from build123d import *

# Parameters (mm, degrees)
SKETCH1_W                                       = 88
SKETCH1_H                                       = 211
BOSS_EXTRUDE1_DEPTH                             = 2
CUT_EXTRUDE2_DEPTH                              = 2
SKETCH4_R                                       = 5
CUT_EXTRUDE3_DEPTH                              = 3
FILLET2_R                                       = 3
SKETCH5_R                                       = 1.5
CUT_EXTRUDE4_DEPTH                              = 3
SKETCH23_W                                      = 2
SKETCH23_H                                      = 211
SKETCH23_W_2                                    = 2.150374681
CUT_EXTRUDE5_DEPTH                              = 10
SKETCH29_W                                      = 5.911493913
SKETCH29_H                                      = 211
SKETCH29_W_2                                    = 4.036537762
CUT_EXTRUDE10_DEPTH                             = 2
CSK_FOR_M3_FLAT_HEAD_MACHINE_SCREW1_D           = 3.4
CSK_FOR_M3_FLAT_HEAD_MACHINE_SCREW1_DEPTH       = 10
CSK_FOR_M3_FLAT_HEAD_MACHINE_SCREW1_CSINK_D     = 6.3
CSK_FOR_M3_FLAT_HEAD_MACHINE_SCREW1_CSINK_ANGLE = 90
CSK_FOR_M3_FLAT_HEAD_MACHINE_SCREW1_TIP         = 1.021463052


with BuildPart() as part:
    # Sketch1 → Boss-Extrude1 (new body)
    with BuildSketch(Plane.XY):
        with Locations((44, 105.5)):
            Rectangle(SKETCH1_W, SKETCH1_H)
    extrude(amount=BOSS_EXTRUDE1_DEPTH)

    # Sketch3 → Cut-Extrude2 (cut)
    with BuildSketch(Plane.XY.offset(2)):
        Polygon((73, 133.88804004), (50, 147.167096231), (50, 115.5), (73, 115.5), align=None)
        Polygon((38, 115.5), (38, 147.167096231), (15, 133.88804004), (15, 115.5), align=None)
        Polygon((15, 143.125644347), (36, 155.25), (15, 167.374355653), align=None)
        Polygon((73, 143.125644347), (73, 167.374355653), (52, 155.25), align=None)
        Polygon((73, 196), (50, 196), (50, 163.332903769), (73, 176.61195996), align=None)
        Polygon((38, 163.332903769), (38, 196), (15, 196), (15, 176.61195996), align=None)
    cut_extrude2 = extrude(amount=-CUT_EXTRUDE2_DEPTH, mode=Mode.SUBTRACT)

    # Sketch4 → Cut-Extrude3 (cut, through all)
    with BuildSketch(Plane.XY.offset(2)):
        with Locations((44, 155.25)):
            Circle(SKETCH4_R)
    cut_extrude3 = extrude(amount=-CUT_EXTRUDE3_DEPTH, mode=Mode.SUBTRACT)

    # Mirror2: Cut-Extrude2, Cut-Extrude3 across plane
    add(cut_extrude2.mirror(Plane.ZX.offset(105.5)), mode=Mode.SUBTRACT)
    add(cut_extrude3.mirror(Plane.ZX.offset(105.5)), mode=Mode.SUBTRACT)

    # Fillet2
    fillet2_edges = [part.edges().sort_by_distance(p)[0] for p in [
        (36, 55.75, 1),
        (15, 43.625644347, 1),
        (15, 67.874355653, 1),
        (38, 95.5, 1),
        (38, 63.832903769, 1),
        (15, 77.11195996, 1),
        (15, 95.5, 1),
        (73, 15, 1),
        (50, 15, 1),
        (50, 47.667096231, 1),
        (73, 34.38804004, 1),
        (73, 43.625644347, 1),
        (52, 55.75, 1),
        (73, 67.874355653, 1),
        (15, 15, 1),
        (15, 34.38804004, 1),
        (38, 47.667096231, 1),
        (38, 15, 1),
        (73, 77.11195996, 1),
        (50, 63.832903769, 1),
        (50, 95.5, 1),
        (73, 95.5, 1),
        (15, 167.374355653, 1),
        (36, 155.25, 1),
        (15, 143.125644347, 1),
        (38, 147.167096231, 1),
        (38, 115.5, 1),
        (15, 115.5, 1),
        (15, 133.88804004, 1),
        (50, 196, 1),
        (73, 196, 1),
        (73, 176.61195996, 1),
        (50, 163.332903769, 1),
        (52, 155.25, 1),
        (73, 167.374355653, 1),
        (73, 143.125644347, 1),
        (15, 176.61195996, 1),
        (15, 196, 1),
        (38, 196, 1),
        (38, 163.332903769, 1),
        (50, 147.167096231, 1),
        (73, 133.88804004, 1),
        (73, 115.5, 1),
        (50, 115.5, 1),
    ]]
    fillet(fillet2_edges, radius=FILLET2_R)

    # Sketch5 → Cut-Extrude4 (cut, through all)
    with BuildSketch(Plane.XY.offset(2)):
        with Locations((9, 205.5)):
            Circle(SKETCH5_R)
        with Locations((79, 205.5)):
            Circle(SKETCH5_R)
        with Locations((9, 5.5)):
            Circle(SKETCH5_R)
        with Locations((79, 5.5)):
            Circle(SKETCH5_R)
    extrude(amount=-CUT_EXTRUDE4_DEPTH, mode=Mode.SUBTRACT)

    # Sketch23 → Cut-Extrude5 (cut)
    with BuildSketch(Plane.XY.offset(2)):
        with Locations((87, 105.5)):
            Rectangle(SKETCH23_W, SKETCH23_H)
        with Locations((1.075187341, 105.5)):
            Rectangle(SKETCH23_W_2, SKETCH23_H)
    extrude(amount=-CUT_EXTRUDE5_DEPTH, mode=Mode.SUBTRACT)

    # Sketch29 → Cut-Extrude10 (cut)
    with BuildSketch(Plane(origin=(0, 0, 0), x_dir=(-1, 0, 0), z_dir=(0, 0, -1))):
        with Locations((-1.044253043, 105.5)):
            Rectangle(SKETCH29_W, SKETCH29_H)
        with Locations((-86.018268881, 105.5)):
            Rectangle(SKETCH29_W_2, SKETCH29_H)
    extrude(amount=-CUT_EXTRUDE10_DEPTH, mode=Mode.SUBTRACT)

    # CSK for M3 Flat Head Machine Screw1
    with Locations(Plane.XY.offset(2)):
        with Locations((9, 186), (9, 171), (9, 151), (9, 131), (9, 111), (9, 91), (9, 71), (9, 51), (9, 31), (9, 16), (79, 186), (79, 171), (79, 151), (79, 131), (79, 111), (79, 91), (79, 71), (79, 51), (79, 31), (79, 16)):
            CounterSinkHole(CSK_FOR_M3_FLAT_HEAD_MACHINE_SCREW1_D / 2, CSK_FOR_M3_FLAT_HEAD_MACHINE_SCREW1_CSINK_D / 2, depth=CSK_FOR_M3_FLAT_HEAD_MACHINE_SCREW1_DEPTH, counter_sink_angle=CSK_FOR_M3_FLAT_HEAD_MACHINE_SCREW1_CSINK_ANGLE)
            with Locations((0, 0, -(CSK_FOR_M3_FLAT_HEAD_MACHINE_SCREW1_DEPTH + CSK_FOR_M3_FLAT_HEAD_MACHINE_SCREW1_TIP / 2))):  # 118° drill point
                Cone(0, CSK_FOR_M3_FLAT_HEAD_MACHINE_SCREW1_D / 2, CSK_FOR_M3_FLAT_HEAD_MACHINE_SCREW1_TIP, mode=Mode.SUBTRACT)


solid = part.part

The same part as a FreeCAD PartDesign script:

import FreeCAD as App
import Part
import Sketcher
Q = App.Units.Quantity


def edges_at(feature, points):
    """Names of the edges that pass closest to the given points."""
    edges = feature.Shape.Edges
    near = lambda p: min(range(len(edges)), key=lambda i: edges[i].distToShape(Part.Vertex(*p))[0])
    return sorted({f"Edge{near(p) + 1}" for p in points})


def add_polygon(sketch, points):
    """Adds a closed chain of lines whose ends are joined by coincident constraints."""
    first, n = sketch.GeometryCount, len(points)
    for a, b in zip(points, points[1:] + points[:1]):
        sketch.addGeometry(Part.LineSegment(App.Vector(*a, 0), App.Vector(*b, 0)), False)
    for i in range(n):
        sketch.addConstraint(Sketcher.Constraint("Coincident", first + i, 2, first + (i + 1) % n, 1))

doc = App.newDocument("Part")
body = doc.addObject("PartDesign::Body", "Body")

sketch1 = body.newObject("Sketcher::SketchObject", "Sketch")
sketch1.AttachmentSupport = (doc.getObject("XY_Plane"), [""])
sketch1.MapMode = "FlatFace"
add_polygon(sketch1, [(0, 211), (0, 0), (88, 0), (88, 211)])
sketch1.addConstraint(Sketcher.Constraint("Vertical", 0))
sketch1.addConstraint(Sketcher.Constraint("Horizontal", 1))
sketch1.addConstraint(Sketcher.Constraint("Vertical", 2))
sketch1.addConstraint(Sketcher.Constraint("Horizontal", 3))
sketch1.addConstraint(Sketcher.Constraint("Coincident", 0, 2, -1, 1))
sketch1.addConstraint(Sketcher.Constraint("DistanceX", 1, 1, 1, 2, Q("88 mm")))
sketch1.addConstraint(Sketcher.Constraint("DistanceY", 0, 2, 0, 1, Q("211 mm")))
pad1 = body.newObject("PartDesign::Pad", "Pad")
pad1.Profile = sketch1
pad1.Length = 2

sketch2 = body.newObject("Sketcher::SketchObject", "Sketch001")
sketch2.AttachmentSupport = (doc.getObject("XY_Plane"), [""])
sketch2.MapMode = "FlatFace"
sketch2.AttachmentOffset = App.Placement(App.Vector(0, 0, 2), App.Rotation())
add_polygon(sketch2, [(73, 134), (50, 147), (50, 116), (73, 116)])
add_polygon(sketch2, [(38, 116), (38, 147), (15, 134), (15, 116)])
add_polygon(sketch2, [(15, 143), (36, 155), (15, 167)])
add_polygon(sketch2, [(73, 143), (73, 167), (52, 155)])
add_polygon(sketch2, [(73, 196), (50, 196), (50, 163), (73, 177)])
add_polygon(sketch2, [(38, 163), (38, 196), (15, 196), (15, 177)])
sketch2.addConstraint(Sketcher.Constraint("Vertical", 1))
sketch2.addConstraint(Sketcher.Constraint("Horizontal", 2))
sketch2.addConstraint(Sketcher.Constraint("Vertical", 3))
sketch2.addConstraint(Sketcher.Constraint("Vertical", 4))
sketch2.addConstraint(Sketcher.Constraint("Vertical", 6))
sketch2.addConstraint(Sketcher.Constraint("Horizontal", 7))
sketch2.addConstraint(Sketcher.Constraint("Vertical", 10))
sketch2.addConstraint(Sketcher.Constraint("Vertical", 11))
sketch2.addConstraint(Sketcher.Constraint("Horizontal", 14))
sketch2.addConstraint(Sketcher.Constraint("Vertical", 15))
sketch2.addConstraint(Sketcher.Constraint("Vertical", 17))
sketch2.addConstraint(Sketcher.Constraint("Vertical", 18))
sketch2.addConstraint(Sketcher.Constraint("Horizontal", 19))
sketch2.addConstraint(Sketcher.Constraint("Vertical", 20))
sketch2.addConstraint(Sketcher.Constraint("Parallel", 5, 8))
sketch2.addConstraint(Sketcher.Constraint("Parallel", 0, 9))
sketch2.addConstraint(Sketcher.Constraint("Parallel", 8, 12))
sketch2.addConstraint(Sketcher.Constraint("Parallel", 9, 13))
sketch2.addConstraint(Sketcher.Constraint("Parallel", 12, 16))
sketch2.addConstraint(Sketcher.Constraint("Parallel", 13, 21))
sketch2.addConstraint(Sketcher.Constraint("Horizontal", 0, 2, 4, 2))
sketch2.addConstraint(Sketcher.Constraint("Horizontal", 3, 2, 5, 2))
sketch2.addConstraint(Sketcher.Constraint("Horizontal", 2, 2, 6, 2))
sketch2.addConstraint(Sketcher.Constraint("Horizontal", 9, 2, 11, 2))
sketch2.addConstraint(Sketcher.Constraint("Horizontal", 8, 2, 12, 2))
sketch2.addConstraint(Sketcher.Constraint("Horizontal", 10, 2, 13, 2))
sketch2.addConstraint(Sketcher.Constraint("Horizontal", 17, 2, 18, 2))
sketch2.addConstraint(Sketcher.Constraint("Horizontal", 16, 2, 20, 2))
sketch2.addConstraint(Sketcher.Constraint("Horizontal", 15, 2, 21, 2))
sketch2.addConstraint(Sketcher.Constraint("Vertical", 6, 2, 9, 2))
sketch2.addConstraint(Sketcher.Constraint("Vertical", 3, 2, 11, 2))
sketch2.addConstraint(Sketcher.Constraint("Vertical", 1, 2, 14, 2))
sketch2.addConstraint(Sketcher.Constraint("Vertical", 13, 2, 16, 2))
sketch2.addConstraint(Sketcher.Constraint("Vertical", 7, 2, 18, 2))
sketch2.addConstraint(Sketcher.Constraint("DistanceX", 2, 1, 2, 2, Q("23 mm")))
sketch2.addConstraint(Sketcher.Constraint("Angle", 0, Q("150 deg")))
sketch2.addConstraint(Sketcher.Constraint("DistanceX", -1, 1, 0, 2, Q("50 mm")))
sketch2.addConstraint(Sketcher.Constraint("DistanceX", -1, 1, 4, 2, Q("38 mm")))
sketch2.addConstraint(Sketcher.Constraint("DistanceX", -1, 1, 8, 2, Q("36 mm")))
sketch2.addConstraint(Sketcher.Constraint("DistanceY", -1, 1, 14, 2, Q("196 mm")))
sketch2.addConstraint(Sketcher.Constraint("DistanceY", -1, 1, 1, 2, Q("115.5 mm")))
sketch2.addConstraint(Sketcher.Constraint("DistanceY", -1, 1, 8, 2, Q("155.25 mm")))
sketch2.addConstraint(Sketcher.Constraint("DistanceY", 3, 1, 3, 2, Q("18.38804 mm")))
sketch2.addConstraint(Sketcher.Constraint("DistanceY", 17, 1, 17, 2, Q("19.38804 mm")))
pocket1 = body.newObject("PartDesign::Pocket", "Pocket")
pocket1.Profile = sketch2
pocket1.Length = 2

sketch3 = body.newObject("Sketcher::SketchObject", "Sketch002")
sketch3.AttachmentSupport = (doc.getObject("XY_Plane"), [""])
sketch3.MapMode = "FlatFace"
sketch3.AttachmentOffset = App.Placement(App.Vector(0, 0, 2), App.Rotation())
sketch3.addGeometry(Part.Circle(App.Vector(44, 155, 0), App.Vector(0, 0, 1), 5), False)
sketch3.addConstraint(Sketcher.Constraint("Diameter", 0, Q("10 mm")))
sketch3.addConstraint(Sketcher.Constraint("DistanceX", -1, 1, 0, 3, Q("44 mm")))
sketch3.addConstraint(Sketcher.Constraint("DistanceY", -1, 1, 0, 3, Q("155.25 mm")))
pocket2 = body.newObject("PartDesign::Pocket", "Pocket001")
pocket2.Profile = sketch3
pocket2.Type = "ThroughAll"
doc.recompute()

datumplane = body.newObject("PartDesign::Plane", "DatumPlane")
datumplane.AttachmentSupport = (doc.getObject("XZ_Plane"), [""])
datumplane.MapMode = "FlatFace"
datumplane.AttachmentOffset = App.Placement(App.Vector(0, 0, -105.5), App.Rotation())
mirrored = body.newObject("PartDesign::Mirrored", "Mirrored")
mirrored.Originals = [pocket1, pocket2]
mirrored.MirrorPlane = (datumplane, [""])
body.Tip = mirrored
doc.recompute()

fillet = body.newObject("PartDesign::Fillet", "Fillet")
fillet.Base = (mirrored, edges_at(mirrored, [
    (36, 55.75, 1),
    (15, 43.626, 1),
    (15, 67.874, 1),
    (38, 95.5, 1),
    (38, 63.833, 1),
    (15, 77.112, 1),
    (15, 95.5, 1),
    (73, 15, 1),
    (50, 15, 1),
    (50, 47.667, 1),
    (73, 34.388, 1),
    (73, 43.626, 1),
    (52, 55.75, 1),
    (73, 67.874, 1),
    (15, 15, 1),
    (15, 34.388, 1),
    (38, 47.667, 1),
    (38, 15, 1),
    (73, 77.112, 1),
    (50, 63.833, 1),
    (50, 95.5, 1),
    (73, 95.5, 1),
    (15, 167.374, 1),
    (36, 155.25, 1),
    (15, 143.126, 1),
    (38, 147.167, 1),
    (38, 115.5, 1),
    (15, 115.5, 1),
    (15, 133.888, 1),
    (50, 196, 1),
    (73, 196, 1),
    (73, 176.612, 1),
    (50, 163.333, 1),
    (52, 155.25, 1),
    (73, 167.374, 1),
    (73, 143.126, 1),
    (15, 176.612, 1),
    (15, 196, 1),
    (38, 196, 1),
    (38, 163.333, 1),
    (50, 147.167, 1),
    (73, 133.888, 1),
    (73, 115.5, 1),
    (50, 115.5, 1),
]))
fillet.Radius = 3

sketch4 = body.newObject("Sketcher::SketchObject", "Sketch003")
sketch4.AttachmentSupport = (doc.getObject("XY_Plane"), [""])
sketch4.MapMode = "FlatFace"
sketch4.AttachmentOffset = App.Placement(App.Vector(0, 0, 2), App.Rotation())
sketch4.addGeometry(Part.Circle(App.Vector(9, 205.5, 0), App.Vector(0, 0, 1), 1.5), False)
sketch4.addGeometry(Part.Circle(App.Vector(79, 205.5, 0), App.Vector(0, 0, 1), 1.5), False)
sketch4.addGeometry(Part.Circle(App.Vector(9, 5.5, 0), App.Vector(0, 0, 1), 1.5), False)
sketch4.addGeometry(Part.Circle(App.Vector(79, 5.5, 0), App.Vector(0, 0, 1), 1.5), False)
sketch4.addConstraint(Sketcher.Constraint("Equal", 0, 1))
sketch4.addConstraint(Sketcher.Constraint("Equal", 1, 2))
sketch4.addConstraint(Sketcher.Constraint("Equal", 2, 3))
sketch4.addConstraint(Sketcher.Constraint("Horizontal", 0, 3, 1, 3))
sketch4.addConstraint(Sketcher.Constraint("Horizontal", 2, 3, 3, 3))
sketch4.addConstraint(Sketcher.Constraint("Vertical", 0, 3, 2, 3))
sketch4.addConstraint(Sketcher.Constraint("Vertical", 1, 3, 3, 3))
sketch4.addConstraint(Sketcher.Constraint("Diameter", 0, Q("3 mm")))
sketch4.addConstraint(Sketcher.Constraint("DistanceX", -1, 1, 0, 3, Q("9 mm")))
sketch4.addConstraint(Sketcher.Constraint("DistanceX", -1, 1, 1, 3, Q("79 mm")))
sketch4.addConstraint(Sketcher.Constraint("DistanceY", 2, 3, 0, 3, Q("200 mm")))
sketch4.addConstraint(Sketcher.Constraint("DistanceY", -1, 1, 0, 3, Q("205.5 mm")))
pocket3 = body.newObject("PartDesign::Pocket", "Pocket002")
pocket3.Profile = sketch4
pocket3.Type = "ThroughAll"

sketch5 = body.newObject("Sketcher::SketchObject", "Sketch004")
sketch5.AttachmentSupport = (doc.getObject("XY_Plane"), [""])
sketch5.MapMode = "FlatFace"
sketch5.AttachmentOffset = App.Placement(App.Vector(0, 0, 2), App.Rotation())
add_polygon(sketch5, [(86, 211), (86, 0), (88, 0), (88, 211)])
add_polygon(sketch5, [(0, 211), (0, 0), (2.2, 0), (2.2, 211)])
sketch5.addConstraint(Sketcher.Constraint("Vertical", 0))
sketch5.addConstraint(Sketcher.Constraint("Horizontal", 1))
sketch5.addConstraint(Sketcher.Constraint("Vertical", 2))
sketch5.addConstraint(Sketcher.Constraint("Horizontal", 3))
sketch5.addConstraint(Sketcher.Constraint("Vertical", 4))
sketch5.addConstraint(Sketcher.Constraint("Horizontal", 5))
sketch5.addConstraint(Sketcher.Constraint("Vertical", 6))
sketch5.addConstraint(Sketcher.Constraint("Horizontal", 7))
sketch5.addConstraint(Sketcher.Constraint("Coincident", 4, 2, -1, 1))
sketch5.addConstraint(Sketcher.Constraint("PointOnObject", 0, 2, -1))
sketch5.addConstraint(Sketcher.Constraint("Horizontal", 3, 2, 6, 2))
sketch5.addConstraint(Sketcher.Constraint("DistanceX", 1, 1, 1, 2, Q("2 mm")))
sketch5.addConstraint(Sketcher.Constraint("DistanceY", 0, 2, 0, 1, Q("211 mm")))
sketch5.addConstraint(Sketcher.Constraint("DistanceX", -1, 1, 0, 2, Q("86 mm")))
sketch5.addConstraint(Sketcher.Constraint("DistanceX", 5, 1, 5, 2, Q("2.150375 mm")))
pocket4 = body.newObject("PartDesign::Pocket", "Pocket003")
pocket4.Profile = sketch5
pocket4.Length = 10

sketch6 = body.newObject("Sketcher::SketchObject", "Sketch005")
sketch6.AttachmentSupport = (doc.getObject("XY_Plane"), [""])
sketch6.MapMode = "FlatFace"
add_polygon(sketch6, [(4, 211), (4, 0), (-1.9, 0), (-1.9, 211)])
add_polygon(sketch6, [(88, 211), (88, 0), (84, 0), (84, 211)])
sketch6.addConstraint(Sketcher.Constraint("Vertical", 0))
sketch6.addConstraint(Sketcher.Constraint("Horizontal", 1))
sketch6.addConstraint(Sketcher.Constraint("Vertical", 2))
sketch6.addConstraint(Sketcher.Constraint("Horizontal", 3))
sketch6.addConstraint(Sketcher.Constraint("Vertical", 4))
sketch6.addConstraint(Sketcher.Constraint("Horizontal", 5))
sketch6.addConstraint(Sketcher.Constraint("Vertical", 6))
sketch6.addConstraint(Sketcher.Constraint("Horizontal", 7))
sketch6.addConstraint(Sketcher.Constraint("PointOnObject", 0, 2, -1))
sketch6.addConstraint(Sketcher.Constraint("PointOnObject", 4, 2, -1))
sketch6.addConstraint(Sketcher.Constraint("Horizontal", 3, 2, 6, 2))
sketch6.addConstraint(Sketcher.Constraint("DistanceY", 0, 2, 0, 1, Q("211 mm")))
sketch6.addConstraint(Sketcher.Constraint("DistanceX", -1, 1, 0, 2, Q("4 mm")))
sketch6.addConstraint(Sketcher.Constraint("DistanceX", -1, 1, 5, 2, Q("84 mm")))
sketch6.addConstraint(Sketcher.Constraint("DistanceX", 1, 2, 1, 1, Q("5.911494 mm")))
sketch6.addConstraint(Sketcher.Constraint("DistanceX", 5, 2, 5, 1, Q("4.036538 mm")))
pocket5 = body.newObject("PartDesign::Pocket", "Pocket004")
pocket5.Profile = sketch6
pocket5.Length = 2
pocket5.Reversed = True

sketch7 = body.newObject("Sketcher::SketchObject", "Sketch006")
sketch7.AttachmentSupport = (doc.getObject("XY_Plane"), [""])
sketch7.MapMode = "FlatFace"
sketch7.AttachmentOffset = App.Placement(App.Vector(0, 0, 2), App.Rotation())
sketch7.addGeometry(Part.Circle(App.Vector(9, 186, 0), App.Vector(0, 0, 1), 1.7), False)
sketch7.addGeometry(Part.Circle(App.Vector(9, 171, 0), App.Vector(0, 0, 1), 1.7), False)
sketch7.addGeometry(Part.Circle(App.Vector(9, 151, 0), App.Vector(0, 0, 1), 1.7), False)
sketch7.addGeometry(Part.Circle(App.Vector(9, 131, 0), App.Vector(0, 0, 1), 1.7), False)
sketch7.addGeometry(Part.Circle(App.Vector(9, 111, 0), App.Vector(0, 0, 1), 1.7), False)
sketch7.addGeometry(Part.Circle(App.Vector(9, 91, 0), App.Vector(0, 0, 1), 1.7), False)
sketch7.addGeometry(Part.Circle(App.Vector(9, 71, 0), App.Vector(0, 0, 1), 1.7), False)
sketch7.addGeometry(Part.Circle(App.Vector(9, 51, 0), App.Vector(0, 0, 1), 1.7), False)
sketch7.addGeometry(Part.Circle(App.Vector(9, 31, 0), App.Vector(0, 0, 1), 1.7), False)
sketch7.addGeometry(Part.Circle(App.Vector(9, 16, 0), App.Vector(0, 0, 1), 1.7), False)
sketch7.addGeometry(Part.Circle(App.Vector(79, 186, 0), App.Vector(0, 0, 1), 1.7), False)
sketch7.addGeometry(Part.Circle(App.Vector(79, 171, 0), App.Vector(0, 0, 1), 1.7), False)
sketch7.addGeometry(Part.Circle(App.Vector(79, 151, 0), App.Vector(0, 0, 1), 1.7), False)
sketch7.addGeometry(Part.Circle(App.Vector(79, 131, 0), App.Vector(0, 0, 1), 1.7), False)
sketch7.addGeometry(Part.Circle(App.Vector(79, 111, 0), App.Vector(0, 0, 1), 1.7), False)
sketch7.addGeometry(Part.Circle(App.Vector(79, 91, 0), App.Vector(0, 0, 1), 1.7), False)
sketch7.addGeometry(Part.Circle(App.Vector(79, 71, 0), App.Vector(0, 0, 1), 1.7), False)
sketch7.addGeometry(Part.Circle(App.Vector(79, 51, 0), App.Vector(0, 0, 1), 1.7), False)
sketch7.addGeometry(Part.Circle(App.Vector(79, 31, 0), App.Vector(0, 0, 1), 1.7), False)
sketch7.addGeometry(Part.Circle(App.Vector(79, 16, 0), App.Vector(0, 0, 1), 1.7), False)
sketch7.addConstraint(Sketcher.Constraint("Equal", 0, 1))
sketch7.addConstraint(Sketcher.Constraint("Equal", 1, 2))
sketch7.addConstraint(Sketcher.Constraint("Equal", 2, 3))
sketch7.addConstraint(Sketcher.Constraint("Equal", 3, 4))
sketch7.addConstraint(Sketcher.Constraint("Equal", 4, 5))
sketch7.addConstraint(Sketcher.Constraint("Equal", 5, 6))
sketch7.addConstraint(Sketcher.Constraint("Equal", 6, 7))
sketch7.addConstraint(Sketcher.Constraint("Equal", 7, 8))
sketch7.addConstraint(Sketcher.Constraint("Equal", 8, 9))
sketch7.addConstraint(Sketcher.Constraint("Equal", 9, 10))
sketch7.addConstraint(Sketcher.Constraint("Equal", 10, 11))
sketch7.addConstraint(Sketcher.Constraint("Equal", 11, 12))
sketch7.addConstraint(Sketcher.Constraint("Equal", 12, 13))
sketch7.addConstraint(Sketcher.Constraint("Equal", 13, 14))
sketch7.addConstraint(Sketcher.Constraint("Equal", 14, 15))
sketch7.addConstraint(Sketcher.Constraint("Equal", 15, 16))
sketch7.addConstraint(Sketcher.Constraint("Equal", 16, 17))
sketch7.addConstraint(Sketcher.Constraint("Equal", 17, 18))
sketch7.addConstraint(Sketcher.Constraint("Equal", 18, 19))
sketch7.addConstraint(Sketcher.Constraint("Horizontal", 0, 3, 10, 3))
sketch7.addConstraint(Sketcher.Constraint("Horizontal", 1, 3, 11, 3))
sketch7.addConstraint(Sketcher.Constraint("Horizontal", 2, 3, 12, 3))
sketch7.addConstraint(Sketcher.Constraint("Horizontal", 3, 3, 13, 3))
sketch7.addConstraint(Sketcher.Constraint("Horizontal", 4, 3, 14, 3))
sketch7.addConstraint(Sketcher.Constraint("Horizontal", 5, 3, 15, 3))
sketch7.addConstraint(Sketcher.Constraint("Horizontal", 6, 3, 16, 3))
sketch7.addConstraint(Sketcher.Constraint("Horizontal", 7, 3, 17, 3))
sketch7.addConstraint(Sketcher.Constraint("Horizontal", 8, 3, 18, 3))
sketch7.addConstraint(Sketcher.Constraint("Horizontal", 9, 3, 19, 3))
sketch7.addConstraint(Sketcher.Constraint("Vertical", 0, 3, 1, 3))
sketch7.addConstraint(Sketcher.Constraint("Vertical", 1, 3, 2, 3))
sketch7.addConstraint(Sketcher.Constraint("Vertical", 2, 3, 3, 3))
sketch7.addConstraint(Sketcher.Constraint("Vertical", 3, 3, 4, 3))
sketch7.addConstraint(Sketcher.Constraint("Vertical", 4, 3, 5, 3))
sketch7.addConstraint(Sketcher.Constraint("Vertical", 5, 3, 6, 3))
sketch7.addConstraint(Sketcher.Constraint("Vertical", 6, 3, 7, 3))
sketch7.addConstraint(Sketcher.Constraint("Vertical", 7, 3, 8, 3))
sketch7.addConstraint(Sketcher.Constraint("Vertical", 8, 3, 9, 3))
sketch7.addConstraint(Sketcher.Constraint("Vertical", 10, 3, 11, 3))
sketch7.addConstraint(Sketcher.Constraint("Vertical", 11, 3, 12, 3))
sketch7.addConstraint(Sketcher.Constraint("Vertical", 12, 3, 13, 3))
sketch7.addConstraint(Sketcher.Constraint("Vertical", 13, 3, 14, 3))
sketch7.addConstraint(Sketcher.Constraint("Vertical", 14, 3, 15, 3))
sketch7.addConstraint(Sketcher.Constraint("Vertical", 15, 3, 16, 3))
sketch7.addConstraint(Sketcher.Constraint("Vertical", 16, 3, 17, 3))
sketch7.addConstraint(Sketcher.Constraint("Vertical", 17, 3, 18, 3))
sketch7.addConstraint(Sketcher.Constraint("Vertical", 18, 3, 19, 3))
sketch7.addConstraint(Sketcher.Constraint("Diameter", 0, Q("3.4 mm")))
sketch7.addConstraint(Sketcher.Constraint("DistanceX", -1, 1, 0, 3, Q("9 mm")))
sketch7.addConstraint(Sketcher.Constraint("DistanceY", -1, 1, 0, 3, Q("186 mm")))
sketch7.addConstraint(Sketcher.Constraint("DistanceY", -1, 1, 1, 3, Q("171 mm")))
sketch7.addConstraint(Sketcher.Constraint("DistanceY", -1, 1, 2, 3, Q("151 mm")))
sketch7.addConstraint(Sketcher.Constraint("DistanceY", -1, 1, 3, 3, Q("131 mm")))
sketch7.addConstraint(Sketcher.Constraint("DistanceY", -1, 1, 4, 3, Q("111 mm")))
sketch7.addConstraint(Sketcher.Constraint("DistanceY", -1, 1, 5, 3, Q("91 mm")))
sketch7.addConstraint(Sketcher.Constraint("DistanceY", -1, 1, 6, 3, Q("71 mm")))
sketch7.addConstraint(Sketcher.Constraint("DistanceY", -1, 1, 7, 3, Q("51 mm")))
sketch7.addConstraint(Sketcher.Constraint("DistanceY", -1, 1, 8, 3, Q("31 mm")))
sketch7.addConstraint(Sketcher.Constraint("DistanceY", -1, 1, 9, 3, Q("16 mm")))
sketch7.addConstraint(Sketcher.Constraint("DistanceX", -1, 1, 10, 3, Q("79 mm")))
doc.recompute()
hole = body.newObject("PartDesign::Hole", "Hole")
hole.Profile = sketch7
hole.ThreadType = "None"
hole.Diameter = 3.4
hole.DepthType = "Dimension"
hole.Depth = 10
hole.DrillPoint = "Angled"
hole.DrillPointAngle = 118
hole.HoleCutType = "Countersink"
hole.HoleCutDiameter = 6.3
hole.HoleCutCountersinkAngle = 90

doc.recompute()
